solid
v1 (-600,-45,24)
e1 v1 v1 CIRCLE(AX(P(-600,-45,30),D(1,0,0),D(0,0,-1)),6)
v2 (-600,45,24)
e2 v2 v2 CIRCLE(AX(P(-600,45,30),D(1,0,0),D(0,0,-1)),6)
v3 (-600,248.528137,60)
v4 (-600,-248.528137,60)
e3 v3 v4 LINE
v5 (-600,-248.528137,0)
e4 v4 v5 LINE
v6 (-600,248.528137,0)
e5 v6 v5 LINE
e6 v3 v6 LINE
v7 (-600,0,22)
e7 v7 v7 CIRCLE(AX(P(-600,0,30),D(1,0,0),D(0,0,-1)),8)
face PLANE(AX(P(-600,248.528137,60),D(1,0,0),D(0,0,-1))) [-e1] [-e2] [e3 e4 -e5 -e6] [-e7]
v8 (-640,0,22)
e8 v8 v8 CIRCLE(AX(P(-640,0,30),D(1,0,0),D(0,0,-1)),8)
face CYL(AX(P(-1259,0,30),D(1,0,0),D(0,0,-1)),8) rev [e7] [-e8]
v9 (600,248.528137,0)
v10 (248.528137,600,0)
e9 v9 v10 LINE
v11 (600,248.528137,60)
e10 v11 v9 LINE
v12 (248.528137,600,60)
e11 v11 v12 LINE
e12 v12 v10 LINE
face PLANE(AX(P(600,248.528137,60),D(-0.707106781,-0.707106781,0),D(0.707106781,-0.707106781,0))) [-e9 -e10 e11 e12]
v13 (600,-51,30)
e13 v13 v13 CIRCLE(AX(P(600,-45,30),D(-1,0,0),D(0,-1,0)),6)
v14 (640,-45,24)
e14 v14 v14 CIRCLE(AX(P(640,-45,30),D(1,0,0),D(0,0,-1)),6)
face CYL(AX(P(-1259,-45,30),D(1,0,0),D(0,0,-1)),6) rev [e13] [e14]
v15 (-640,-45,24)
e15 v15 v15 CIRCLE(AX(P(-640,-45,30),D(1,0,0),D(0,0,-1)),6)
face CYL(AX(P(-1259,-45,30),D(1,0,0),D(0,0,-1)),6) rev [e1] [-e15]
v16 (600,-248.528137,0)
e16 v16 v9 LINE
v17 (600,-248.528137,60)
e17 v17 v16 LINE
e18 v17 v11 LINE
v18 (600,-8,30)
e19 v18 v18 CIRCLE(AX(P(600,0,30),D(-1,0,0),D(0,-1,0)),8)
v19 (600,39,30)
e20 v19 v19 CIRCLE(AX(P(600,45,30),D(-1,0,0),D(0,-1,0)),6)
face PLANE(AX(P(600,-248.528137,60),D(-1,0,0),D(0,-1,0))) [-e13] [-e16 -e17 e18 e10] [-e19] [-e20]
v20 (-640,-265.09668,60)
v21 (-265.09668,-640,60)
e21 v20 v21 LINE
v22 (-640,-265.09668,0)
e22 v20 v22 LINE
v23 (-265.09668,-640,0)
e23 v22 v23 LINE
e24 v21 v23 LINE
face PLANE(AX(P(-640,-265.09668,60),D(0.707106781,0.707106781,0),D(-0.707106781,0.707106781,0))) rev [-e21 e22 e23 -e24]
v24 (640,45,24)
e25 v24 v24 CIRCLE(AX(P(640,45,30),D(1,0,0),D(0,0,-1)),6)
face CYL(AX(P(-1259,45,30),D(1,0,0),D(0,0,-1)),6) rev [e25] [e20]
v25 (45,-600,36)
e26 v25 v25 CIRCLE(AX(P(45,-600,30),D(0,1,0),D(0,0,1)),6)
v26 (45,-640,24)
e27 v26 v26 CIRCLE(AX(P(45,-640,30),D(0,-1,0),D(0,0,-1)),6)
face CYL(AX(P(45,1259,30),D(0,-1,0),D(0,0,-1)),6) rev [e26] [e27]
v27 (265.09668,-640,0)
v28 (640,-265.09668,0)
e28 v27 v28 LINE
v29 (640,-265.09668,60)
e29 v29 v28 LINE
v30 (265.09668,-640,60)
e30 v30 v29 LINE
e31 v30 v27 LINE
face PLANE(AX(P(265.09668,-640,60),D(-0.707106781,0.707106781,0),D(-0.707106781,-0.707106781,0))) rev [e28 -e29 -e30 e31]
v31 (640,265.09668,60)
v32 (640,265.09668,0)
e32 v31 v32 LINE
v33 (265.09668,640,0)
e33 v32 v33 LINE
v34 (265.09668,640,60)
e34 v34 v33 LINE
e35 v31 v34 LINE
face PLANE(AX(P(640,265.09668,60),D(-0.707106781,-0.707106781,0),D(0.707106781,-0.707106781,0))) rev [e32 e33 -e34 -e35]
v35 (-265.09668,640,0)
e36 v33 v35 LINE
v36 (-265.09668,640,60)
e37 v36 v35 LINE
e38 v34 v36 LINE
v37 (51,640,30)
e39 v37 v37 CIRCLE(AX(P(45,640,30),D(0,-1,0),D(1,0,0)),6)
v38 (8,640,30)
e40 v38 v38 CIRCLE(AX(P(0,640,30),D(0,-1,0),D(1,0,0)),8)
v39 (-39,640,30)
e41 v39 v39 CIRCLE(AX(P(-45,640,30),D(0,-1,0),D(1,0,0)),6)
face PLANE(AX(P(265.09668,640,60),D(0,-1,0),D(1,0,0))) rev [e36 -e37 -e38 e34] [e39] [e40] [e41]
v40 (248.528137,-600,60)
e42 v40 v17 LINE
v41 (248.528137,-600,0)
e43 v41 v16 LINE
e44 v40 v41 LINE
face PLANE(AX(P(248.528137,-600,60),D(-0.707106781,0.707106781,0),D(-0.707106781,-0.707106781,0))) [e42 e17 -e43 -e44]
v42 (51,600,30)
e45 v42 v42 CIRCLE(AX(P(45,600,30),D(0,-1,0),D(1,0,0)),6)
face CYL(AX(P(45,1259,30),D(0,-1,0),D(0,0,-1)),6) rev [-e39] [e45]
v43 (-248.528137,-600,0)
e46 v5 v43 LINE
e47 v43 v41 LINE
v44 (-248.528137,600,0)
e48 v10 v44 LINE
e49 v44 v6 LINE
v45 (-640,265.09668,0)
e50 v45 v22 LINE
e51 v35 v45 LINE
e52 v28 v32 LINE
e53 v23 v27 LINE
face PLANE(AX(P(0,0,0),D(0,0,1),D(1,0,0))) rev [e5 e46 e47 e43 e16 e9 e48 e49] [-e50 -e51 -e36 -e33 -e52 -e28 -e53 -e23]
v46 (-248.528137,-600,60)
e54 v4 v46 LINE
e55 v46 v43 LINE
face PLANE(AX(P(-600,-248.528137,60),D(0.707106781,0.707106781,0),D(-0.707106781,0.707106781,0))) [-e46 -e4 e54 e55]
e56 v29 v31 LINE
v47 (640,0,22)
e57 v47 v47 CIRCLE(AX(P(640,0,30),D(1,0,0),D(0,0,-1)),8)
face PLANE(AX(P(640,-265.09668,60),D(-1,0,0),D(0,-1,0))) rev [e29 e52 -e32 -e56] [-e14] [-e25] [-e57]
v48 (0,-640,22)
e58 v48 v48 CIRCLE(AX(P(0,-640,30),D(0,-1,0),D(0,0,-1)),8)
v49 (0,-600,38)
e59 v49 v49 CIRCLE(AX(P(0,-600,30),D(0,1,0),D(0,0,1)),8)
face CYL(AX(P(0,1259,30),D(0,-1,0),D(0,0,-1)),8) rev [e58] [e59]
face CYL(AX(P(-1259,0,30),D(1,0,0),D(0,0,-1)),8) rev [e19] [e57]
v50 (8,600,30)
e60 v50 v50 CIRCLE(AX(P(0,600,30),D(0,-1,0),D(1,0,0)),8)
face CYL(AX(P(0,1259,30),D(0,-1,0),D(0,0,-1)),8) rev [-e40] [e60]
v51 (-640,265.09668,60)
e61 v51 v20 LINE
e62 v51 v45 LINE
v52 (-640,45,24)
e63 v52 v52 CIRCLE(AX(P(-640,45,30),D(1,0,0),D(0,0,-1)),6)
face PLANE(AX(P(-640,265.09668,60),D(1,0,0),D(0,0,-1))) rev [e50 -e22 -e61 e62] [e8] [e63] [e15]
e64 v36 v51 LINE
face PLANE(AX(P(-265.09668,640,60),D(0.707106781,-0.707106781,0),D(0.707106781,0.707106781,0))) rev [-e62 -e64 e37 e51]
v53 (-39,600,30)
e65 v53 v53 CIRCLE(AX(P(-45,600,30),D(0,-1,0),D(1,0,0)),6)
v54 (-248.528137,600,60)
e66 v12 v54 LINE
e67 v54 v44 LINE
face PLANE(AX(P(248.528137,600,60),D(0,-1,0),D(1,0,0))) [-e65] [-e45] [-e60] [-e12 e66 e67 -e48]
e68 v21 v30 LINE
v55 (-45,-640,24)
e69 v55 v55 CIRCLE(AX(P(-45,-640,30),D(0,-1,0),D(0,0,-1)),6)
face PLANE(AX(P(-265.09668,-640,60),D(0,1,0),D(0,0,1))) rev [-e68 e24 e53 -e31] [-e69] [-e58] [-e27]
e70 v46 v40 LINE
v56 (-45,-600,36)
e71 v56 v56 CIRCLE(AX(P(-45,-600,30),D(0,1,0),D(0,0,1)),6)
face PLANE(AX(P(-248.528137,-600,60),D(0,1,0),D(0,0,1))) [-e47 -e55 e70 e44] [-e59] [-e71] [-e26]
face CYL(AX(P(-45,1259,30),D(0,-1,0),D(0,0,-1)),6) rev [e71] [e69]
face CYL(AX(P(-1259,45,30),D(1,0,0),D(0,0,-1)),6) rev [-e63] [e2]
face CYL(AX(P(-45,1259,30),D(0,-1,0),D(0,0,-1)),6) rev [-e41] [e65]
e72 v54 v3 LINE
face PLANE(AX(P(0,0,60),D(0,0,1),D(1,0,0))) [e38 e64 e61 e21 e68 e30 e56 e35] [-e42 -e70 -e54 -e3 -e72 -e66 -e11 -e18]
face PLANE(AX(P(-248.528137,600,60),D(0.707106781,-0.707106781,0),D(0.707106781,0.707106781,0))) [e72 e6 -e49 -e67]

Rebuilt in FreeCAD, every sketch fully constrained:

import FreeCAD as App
import Part
import Sketcher
Q = App.Units.Quantity


def add_polygon(sketch, points):
    """Adds a closed chain of lines whose ends are joined by coincident constraints."""
    first, n = sketch.GeometryCount, len(points)
    for a, b in zip(points, points[1:] + points[:1]):
        sketch.addGeometry(Part.LineSegment(App.Vector(*a, 0), App.Vector(*b, 0)), False)
    for i in range(n):
        sketch.addConstraint(Sketcher.Constraint("Coincident", first + i, 2, first + (i + 1) % n, 1))

doc = App.newDocument("Part")
body = doc.addObject("PartDesign::Body", "Body")

sketch1 = body.newObject("Sketcher::SketchObject", "Sketch")
sketch1.AttachmentSupport = (doc.getObject("XY_Plane"), [""])
sketch1.MapMode = "FlatFace"
add_polygon(sketch1, [(265, 640), (-265, 640), (-640, 265), (-640, -265), (-265, -640), (265, -640), (640, -265), (640, 265)])
add_polygon(sketch1, [(600, 249), (600, -249), (249, -600), (-249, -600), (-600, -249), (-600, 249), (-249, 600), (249, 600)])
sketch1.addConstraint(Sketcher.Constraint("Horizontal", 0))
sketch1.addConstraint(Sketcher.Constraint("Vertical", 2))
sketch1.addConstraint(Sketcher.Constraint("Horizontal", 4))
sketch1.addConstraint(Sketcher.Constraint("Vertical", 6))
sketch1.addConstraint(Sketcher.Constraint("Vertical", 8))
sketch1.addConstraint(Sketcher.Constraint("Horizontal", 10))
sketch1.addConstraint(Sketcher.Constraint("Vertical", 12))
sketch1.addConstraint(Sketcher.Constraint("Horizontal", 14))
sketch1.addConstraint(Sketcher.Constraint("Symmetric", 0, 2, 4, 2, -1, 1))
sketch1.addConstraint(Sketcher.Constraint("Symmetric", 1, 2, 5, 2, -1, 1))
sketch1.addConstraint(Sketcher.Constraint("Symmetric", 8, 2, 12, 2, -1, 1))
sketch1.addConstraint(Sketcher.Constraint("Symmetric", 9, 2, 13, 2, -1, 1))
sketch1.addConstraint(Sketcher.Constraint("Perpendicular", 1, 3))
sketch1.addConstraint(Sketcher.Constraint("Perpendicular", 5, 7))
sketch1.addConstraint(Sketcher.Constraint("Perpendicular", 7, 9))
sketch1.addConstraint(Sketcher.Constraint("Perpendicular", 9, 11))
sketch1.addConstraint(Sketcher.Constraint("Perpendicular", 13, 15))
sketch1.addConstraint(Sketcher.Constraint("Horizontal", 2, 2, 5, 2))
sketch1.addConstraint(Sketcher.Constraint("Horizontal", 1, 2, 6, 2))
sketch1.addConstraint(Sketcher.Constraint("Horizontal", 8, 2, 11, 2))
sketch1.addConstraint(Sketcher.Constraint("Horizontal", 12, 2, 15, 2))
sketch1.addConstraint(Sketcher.Constraint("Vertical", 0, 2, 3, 2))
sketch1.addConstraint(Sketcher.Constraint("Equal", 4, 2))
sketch1.addConstraint(Sketcher.Constraint("Equal", 14, 8))
sketch1.addConstraint(Sketcher.Constraint("DistanceY", -1, 1, 0, 2, Q("640 mm")))
sketch1.addConstraint(Sketcher.Constraint("DistanceX", -1, 1, 8, 2, Q("600 mm")))
sketch1.addConstraint(Sketcher.Constraint("DistanceX", 0, 2, 0, 1, Q("530.19336 mm")))
sketch1.addConstraint(Sketcher.Constraint("DistanceX", 10, 2, 10, 1, Q("497.056275 mm")))
pad1 = body.newObject("PartDesign::Pad", "Pad")
pad1.Profile = sketch1
pad1.Length = 60

sketch2 = body.newObject("Sketcher::SketchObject", "Sketch001")
sketch2.AttachmentSupport = (doc.getObject("YZ_Plane"), [""])
sketch2.MapMode = "FlatFace"
sketch2.AttachmentOffset = App.Placement(App.Vector(0, 0, 640), App.Rotation())
sketch2.addGeometry(Part.Circle(App.Vector(0, 30, 0), App.Vector(0, 0, 1), 8), False)
sketch2.addGeometry(Part.Circle(App.Vector(45, 30, 0), App.Vector(0, 0, 1), 6), False)
sketch2.addGeometry(Part.Circle(App.Vector(-45, 30, 0), App.Vector(0, 0, 1), 6), False)
sketch2.addConstraint(Sketcher.Constraint("Equal", 1, 2))
sketch2.addConstraint(Sketcher.Constraint("Symmetric", 1, 3, 2, 3, -2))
sketch2.addConstraint(Sketcher.Constraint("PointOnObject", 0, 3, -2))
sketch2.addConstraint(Sketcher.Constraint("Horizontal", 0, 3, 1, 3))
sketch2.addConstraint(Sketcher.Constraint("Diameter", 0, Q("16 mm")))
sketch2.addConstraint(Sketcher.Constraint("Diameter", 1, Q("12 mm")))
sketch2.addConstraint(Sketcher.Constraint("DistanceY", -1, 1, 0, 3, Q("30 mm")))
sketch2.addConstraint(Sketcher.Constraint("DistanceX", -1, 1, 1, 3, Q("45 mm")))
pocket1 = body.newObject("PartDesign::Pocket", "Pocket")
pocket1.Profile = sketch2
pocket1.Length = 1899

sketch3 = body.newObject("Sketcher::SketchObject", "Sketch002")
sketch3.AttachmentSupport = (doc.getObject("XZ_Plane"), [""])
sketch3.MapMode = "FlatFace"
sketch3.AttachmentOffset = App.Placement(App.Vector(0, 0, 640), App.Rotation())
sketch3.addGeometry(Part.Circle(App.Vector(0, 30, 0), App.Vector(0, 0, 1), 8), False)
sketch3.addGeometry(Part.Circle(App.Vector(-45, 30, 0), App.Vector(0, 0, 1), 6), False)
sketch3.addGeometry(Part.Circle(App.Vector(45, 30, 0), App.Vector(0, 0, 1), 6), False)
sketch3.addConstraint(Sketcher.Constraint("Equal", 1, 2))
sketch3.addConstraint(Sketcher.Constraint("Symmetric", 1, 3, 2, 3, -2))
sketch3.addConstraint(Sketcher.Constraint("PointOnObject", 0, 3, -2))
sketch3.addConstraint(Sketcher.Constraint("Horizontal", 0, 3, 1, 3))
sketch3.addConstraint(Sketcher.Constraint("Diameter", 0, Q("16 mm")))
sketch3.addConstraint(Sketcher.Constraint("Diameter", 1, Q("12 mm")))
sketch3.addConstraint(Sketcher.Constraint("DistanceY", -1, 1, 0, 3, Q("30 mm")))
sketch3.addConstraint(Sketcher.Constraint("DistanceX", 1, 3, -1, 1, Q("45 mm")))
pocket2 = body.newObject("PartDesign::Pocket", "Pocket001")
pocket2.Profile = sketch3
pocket2.Length = 1899

doc.recompute()
